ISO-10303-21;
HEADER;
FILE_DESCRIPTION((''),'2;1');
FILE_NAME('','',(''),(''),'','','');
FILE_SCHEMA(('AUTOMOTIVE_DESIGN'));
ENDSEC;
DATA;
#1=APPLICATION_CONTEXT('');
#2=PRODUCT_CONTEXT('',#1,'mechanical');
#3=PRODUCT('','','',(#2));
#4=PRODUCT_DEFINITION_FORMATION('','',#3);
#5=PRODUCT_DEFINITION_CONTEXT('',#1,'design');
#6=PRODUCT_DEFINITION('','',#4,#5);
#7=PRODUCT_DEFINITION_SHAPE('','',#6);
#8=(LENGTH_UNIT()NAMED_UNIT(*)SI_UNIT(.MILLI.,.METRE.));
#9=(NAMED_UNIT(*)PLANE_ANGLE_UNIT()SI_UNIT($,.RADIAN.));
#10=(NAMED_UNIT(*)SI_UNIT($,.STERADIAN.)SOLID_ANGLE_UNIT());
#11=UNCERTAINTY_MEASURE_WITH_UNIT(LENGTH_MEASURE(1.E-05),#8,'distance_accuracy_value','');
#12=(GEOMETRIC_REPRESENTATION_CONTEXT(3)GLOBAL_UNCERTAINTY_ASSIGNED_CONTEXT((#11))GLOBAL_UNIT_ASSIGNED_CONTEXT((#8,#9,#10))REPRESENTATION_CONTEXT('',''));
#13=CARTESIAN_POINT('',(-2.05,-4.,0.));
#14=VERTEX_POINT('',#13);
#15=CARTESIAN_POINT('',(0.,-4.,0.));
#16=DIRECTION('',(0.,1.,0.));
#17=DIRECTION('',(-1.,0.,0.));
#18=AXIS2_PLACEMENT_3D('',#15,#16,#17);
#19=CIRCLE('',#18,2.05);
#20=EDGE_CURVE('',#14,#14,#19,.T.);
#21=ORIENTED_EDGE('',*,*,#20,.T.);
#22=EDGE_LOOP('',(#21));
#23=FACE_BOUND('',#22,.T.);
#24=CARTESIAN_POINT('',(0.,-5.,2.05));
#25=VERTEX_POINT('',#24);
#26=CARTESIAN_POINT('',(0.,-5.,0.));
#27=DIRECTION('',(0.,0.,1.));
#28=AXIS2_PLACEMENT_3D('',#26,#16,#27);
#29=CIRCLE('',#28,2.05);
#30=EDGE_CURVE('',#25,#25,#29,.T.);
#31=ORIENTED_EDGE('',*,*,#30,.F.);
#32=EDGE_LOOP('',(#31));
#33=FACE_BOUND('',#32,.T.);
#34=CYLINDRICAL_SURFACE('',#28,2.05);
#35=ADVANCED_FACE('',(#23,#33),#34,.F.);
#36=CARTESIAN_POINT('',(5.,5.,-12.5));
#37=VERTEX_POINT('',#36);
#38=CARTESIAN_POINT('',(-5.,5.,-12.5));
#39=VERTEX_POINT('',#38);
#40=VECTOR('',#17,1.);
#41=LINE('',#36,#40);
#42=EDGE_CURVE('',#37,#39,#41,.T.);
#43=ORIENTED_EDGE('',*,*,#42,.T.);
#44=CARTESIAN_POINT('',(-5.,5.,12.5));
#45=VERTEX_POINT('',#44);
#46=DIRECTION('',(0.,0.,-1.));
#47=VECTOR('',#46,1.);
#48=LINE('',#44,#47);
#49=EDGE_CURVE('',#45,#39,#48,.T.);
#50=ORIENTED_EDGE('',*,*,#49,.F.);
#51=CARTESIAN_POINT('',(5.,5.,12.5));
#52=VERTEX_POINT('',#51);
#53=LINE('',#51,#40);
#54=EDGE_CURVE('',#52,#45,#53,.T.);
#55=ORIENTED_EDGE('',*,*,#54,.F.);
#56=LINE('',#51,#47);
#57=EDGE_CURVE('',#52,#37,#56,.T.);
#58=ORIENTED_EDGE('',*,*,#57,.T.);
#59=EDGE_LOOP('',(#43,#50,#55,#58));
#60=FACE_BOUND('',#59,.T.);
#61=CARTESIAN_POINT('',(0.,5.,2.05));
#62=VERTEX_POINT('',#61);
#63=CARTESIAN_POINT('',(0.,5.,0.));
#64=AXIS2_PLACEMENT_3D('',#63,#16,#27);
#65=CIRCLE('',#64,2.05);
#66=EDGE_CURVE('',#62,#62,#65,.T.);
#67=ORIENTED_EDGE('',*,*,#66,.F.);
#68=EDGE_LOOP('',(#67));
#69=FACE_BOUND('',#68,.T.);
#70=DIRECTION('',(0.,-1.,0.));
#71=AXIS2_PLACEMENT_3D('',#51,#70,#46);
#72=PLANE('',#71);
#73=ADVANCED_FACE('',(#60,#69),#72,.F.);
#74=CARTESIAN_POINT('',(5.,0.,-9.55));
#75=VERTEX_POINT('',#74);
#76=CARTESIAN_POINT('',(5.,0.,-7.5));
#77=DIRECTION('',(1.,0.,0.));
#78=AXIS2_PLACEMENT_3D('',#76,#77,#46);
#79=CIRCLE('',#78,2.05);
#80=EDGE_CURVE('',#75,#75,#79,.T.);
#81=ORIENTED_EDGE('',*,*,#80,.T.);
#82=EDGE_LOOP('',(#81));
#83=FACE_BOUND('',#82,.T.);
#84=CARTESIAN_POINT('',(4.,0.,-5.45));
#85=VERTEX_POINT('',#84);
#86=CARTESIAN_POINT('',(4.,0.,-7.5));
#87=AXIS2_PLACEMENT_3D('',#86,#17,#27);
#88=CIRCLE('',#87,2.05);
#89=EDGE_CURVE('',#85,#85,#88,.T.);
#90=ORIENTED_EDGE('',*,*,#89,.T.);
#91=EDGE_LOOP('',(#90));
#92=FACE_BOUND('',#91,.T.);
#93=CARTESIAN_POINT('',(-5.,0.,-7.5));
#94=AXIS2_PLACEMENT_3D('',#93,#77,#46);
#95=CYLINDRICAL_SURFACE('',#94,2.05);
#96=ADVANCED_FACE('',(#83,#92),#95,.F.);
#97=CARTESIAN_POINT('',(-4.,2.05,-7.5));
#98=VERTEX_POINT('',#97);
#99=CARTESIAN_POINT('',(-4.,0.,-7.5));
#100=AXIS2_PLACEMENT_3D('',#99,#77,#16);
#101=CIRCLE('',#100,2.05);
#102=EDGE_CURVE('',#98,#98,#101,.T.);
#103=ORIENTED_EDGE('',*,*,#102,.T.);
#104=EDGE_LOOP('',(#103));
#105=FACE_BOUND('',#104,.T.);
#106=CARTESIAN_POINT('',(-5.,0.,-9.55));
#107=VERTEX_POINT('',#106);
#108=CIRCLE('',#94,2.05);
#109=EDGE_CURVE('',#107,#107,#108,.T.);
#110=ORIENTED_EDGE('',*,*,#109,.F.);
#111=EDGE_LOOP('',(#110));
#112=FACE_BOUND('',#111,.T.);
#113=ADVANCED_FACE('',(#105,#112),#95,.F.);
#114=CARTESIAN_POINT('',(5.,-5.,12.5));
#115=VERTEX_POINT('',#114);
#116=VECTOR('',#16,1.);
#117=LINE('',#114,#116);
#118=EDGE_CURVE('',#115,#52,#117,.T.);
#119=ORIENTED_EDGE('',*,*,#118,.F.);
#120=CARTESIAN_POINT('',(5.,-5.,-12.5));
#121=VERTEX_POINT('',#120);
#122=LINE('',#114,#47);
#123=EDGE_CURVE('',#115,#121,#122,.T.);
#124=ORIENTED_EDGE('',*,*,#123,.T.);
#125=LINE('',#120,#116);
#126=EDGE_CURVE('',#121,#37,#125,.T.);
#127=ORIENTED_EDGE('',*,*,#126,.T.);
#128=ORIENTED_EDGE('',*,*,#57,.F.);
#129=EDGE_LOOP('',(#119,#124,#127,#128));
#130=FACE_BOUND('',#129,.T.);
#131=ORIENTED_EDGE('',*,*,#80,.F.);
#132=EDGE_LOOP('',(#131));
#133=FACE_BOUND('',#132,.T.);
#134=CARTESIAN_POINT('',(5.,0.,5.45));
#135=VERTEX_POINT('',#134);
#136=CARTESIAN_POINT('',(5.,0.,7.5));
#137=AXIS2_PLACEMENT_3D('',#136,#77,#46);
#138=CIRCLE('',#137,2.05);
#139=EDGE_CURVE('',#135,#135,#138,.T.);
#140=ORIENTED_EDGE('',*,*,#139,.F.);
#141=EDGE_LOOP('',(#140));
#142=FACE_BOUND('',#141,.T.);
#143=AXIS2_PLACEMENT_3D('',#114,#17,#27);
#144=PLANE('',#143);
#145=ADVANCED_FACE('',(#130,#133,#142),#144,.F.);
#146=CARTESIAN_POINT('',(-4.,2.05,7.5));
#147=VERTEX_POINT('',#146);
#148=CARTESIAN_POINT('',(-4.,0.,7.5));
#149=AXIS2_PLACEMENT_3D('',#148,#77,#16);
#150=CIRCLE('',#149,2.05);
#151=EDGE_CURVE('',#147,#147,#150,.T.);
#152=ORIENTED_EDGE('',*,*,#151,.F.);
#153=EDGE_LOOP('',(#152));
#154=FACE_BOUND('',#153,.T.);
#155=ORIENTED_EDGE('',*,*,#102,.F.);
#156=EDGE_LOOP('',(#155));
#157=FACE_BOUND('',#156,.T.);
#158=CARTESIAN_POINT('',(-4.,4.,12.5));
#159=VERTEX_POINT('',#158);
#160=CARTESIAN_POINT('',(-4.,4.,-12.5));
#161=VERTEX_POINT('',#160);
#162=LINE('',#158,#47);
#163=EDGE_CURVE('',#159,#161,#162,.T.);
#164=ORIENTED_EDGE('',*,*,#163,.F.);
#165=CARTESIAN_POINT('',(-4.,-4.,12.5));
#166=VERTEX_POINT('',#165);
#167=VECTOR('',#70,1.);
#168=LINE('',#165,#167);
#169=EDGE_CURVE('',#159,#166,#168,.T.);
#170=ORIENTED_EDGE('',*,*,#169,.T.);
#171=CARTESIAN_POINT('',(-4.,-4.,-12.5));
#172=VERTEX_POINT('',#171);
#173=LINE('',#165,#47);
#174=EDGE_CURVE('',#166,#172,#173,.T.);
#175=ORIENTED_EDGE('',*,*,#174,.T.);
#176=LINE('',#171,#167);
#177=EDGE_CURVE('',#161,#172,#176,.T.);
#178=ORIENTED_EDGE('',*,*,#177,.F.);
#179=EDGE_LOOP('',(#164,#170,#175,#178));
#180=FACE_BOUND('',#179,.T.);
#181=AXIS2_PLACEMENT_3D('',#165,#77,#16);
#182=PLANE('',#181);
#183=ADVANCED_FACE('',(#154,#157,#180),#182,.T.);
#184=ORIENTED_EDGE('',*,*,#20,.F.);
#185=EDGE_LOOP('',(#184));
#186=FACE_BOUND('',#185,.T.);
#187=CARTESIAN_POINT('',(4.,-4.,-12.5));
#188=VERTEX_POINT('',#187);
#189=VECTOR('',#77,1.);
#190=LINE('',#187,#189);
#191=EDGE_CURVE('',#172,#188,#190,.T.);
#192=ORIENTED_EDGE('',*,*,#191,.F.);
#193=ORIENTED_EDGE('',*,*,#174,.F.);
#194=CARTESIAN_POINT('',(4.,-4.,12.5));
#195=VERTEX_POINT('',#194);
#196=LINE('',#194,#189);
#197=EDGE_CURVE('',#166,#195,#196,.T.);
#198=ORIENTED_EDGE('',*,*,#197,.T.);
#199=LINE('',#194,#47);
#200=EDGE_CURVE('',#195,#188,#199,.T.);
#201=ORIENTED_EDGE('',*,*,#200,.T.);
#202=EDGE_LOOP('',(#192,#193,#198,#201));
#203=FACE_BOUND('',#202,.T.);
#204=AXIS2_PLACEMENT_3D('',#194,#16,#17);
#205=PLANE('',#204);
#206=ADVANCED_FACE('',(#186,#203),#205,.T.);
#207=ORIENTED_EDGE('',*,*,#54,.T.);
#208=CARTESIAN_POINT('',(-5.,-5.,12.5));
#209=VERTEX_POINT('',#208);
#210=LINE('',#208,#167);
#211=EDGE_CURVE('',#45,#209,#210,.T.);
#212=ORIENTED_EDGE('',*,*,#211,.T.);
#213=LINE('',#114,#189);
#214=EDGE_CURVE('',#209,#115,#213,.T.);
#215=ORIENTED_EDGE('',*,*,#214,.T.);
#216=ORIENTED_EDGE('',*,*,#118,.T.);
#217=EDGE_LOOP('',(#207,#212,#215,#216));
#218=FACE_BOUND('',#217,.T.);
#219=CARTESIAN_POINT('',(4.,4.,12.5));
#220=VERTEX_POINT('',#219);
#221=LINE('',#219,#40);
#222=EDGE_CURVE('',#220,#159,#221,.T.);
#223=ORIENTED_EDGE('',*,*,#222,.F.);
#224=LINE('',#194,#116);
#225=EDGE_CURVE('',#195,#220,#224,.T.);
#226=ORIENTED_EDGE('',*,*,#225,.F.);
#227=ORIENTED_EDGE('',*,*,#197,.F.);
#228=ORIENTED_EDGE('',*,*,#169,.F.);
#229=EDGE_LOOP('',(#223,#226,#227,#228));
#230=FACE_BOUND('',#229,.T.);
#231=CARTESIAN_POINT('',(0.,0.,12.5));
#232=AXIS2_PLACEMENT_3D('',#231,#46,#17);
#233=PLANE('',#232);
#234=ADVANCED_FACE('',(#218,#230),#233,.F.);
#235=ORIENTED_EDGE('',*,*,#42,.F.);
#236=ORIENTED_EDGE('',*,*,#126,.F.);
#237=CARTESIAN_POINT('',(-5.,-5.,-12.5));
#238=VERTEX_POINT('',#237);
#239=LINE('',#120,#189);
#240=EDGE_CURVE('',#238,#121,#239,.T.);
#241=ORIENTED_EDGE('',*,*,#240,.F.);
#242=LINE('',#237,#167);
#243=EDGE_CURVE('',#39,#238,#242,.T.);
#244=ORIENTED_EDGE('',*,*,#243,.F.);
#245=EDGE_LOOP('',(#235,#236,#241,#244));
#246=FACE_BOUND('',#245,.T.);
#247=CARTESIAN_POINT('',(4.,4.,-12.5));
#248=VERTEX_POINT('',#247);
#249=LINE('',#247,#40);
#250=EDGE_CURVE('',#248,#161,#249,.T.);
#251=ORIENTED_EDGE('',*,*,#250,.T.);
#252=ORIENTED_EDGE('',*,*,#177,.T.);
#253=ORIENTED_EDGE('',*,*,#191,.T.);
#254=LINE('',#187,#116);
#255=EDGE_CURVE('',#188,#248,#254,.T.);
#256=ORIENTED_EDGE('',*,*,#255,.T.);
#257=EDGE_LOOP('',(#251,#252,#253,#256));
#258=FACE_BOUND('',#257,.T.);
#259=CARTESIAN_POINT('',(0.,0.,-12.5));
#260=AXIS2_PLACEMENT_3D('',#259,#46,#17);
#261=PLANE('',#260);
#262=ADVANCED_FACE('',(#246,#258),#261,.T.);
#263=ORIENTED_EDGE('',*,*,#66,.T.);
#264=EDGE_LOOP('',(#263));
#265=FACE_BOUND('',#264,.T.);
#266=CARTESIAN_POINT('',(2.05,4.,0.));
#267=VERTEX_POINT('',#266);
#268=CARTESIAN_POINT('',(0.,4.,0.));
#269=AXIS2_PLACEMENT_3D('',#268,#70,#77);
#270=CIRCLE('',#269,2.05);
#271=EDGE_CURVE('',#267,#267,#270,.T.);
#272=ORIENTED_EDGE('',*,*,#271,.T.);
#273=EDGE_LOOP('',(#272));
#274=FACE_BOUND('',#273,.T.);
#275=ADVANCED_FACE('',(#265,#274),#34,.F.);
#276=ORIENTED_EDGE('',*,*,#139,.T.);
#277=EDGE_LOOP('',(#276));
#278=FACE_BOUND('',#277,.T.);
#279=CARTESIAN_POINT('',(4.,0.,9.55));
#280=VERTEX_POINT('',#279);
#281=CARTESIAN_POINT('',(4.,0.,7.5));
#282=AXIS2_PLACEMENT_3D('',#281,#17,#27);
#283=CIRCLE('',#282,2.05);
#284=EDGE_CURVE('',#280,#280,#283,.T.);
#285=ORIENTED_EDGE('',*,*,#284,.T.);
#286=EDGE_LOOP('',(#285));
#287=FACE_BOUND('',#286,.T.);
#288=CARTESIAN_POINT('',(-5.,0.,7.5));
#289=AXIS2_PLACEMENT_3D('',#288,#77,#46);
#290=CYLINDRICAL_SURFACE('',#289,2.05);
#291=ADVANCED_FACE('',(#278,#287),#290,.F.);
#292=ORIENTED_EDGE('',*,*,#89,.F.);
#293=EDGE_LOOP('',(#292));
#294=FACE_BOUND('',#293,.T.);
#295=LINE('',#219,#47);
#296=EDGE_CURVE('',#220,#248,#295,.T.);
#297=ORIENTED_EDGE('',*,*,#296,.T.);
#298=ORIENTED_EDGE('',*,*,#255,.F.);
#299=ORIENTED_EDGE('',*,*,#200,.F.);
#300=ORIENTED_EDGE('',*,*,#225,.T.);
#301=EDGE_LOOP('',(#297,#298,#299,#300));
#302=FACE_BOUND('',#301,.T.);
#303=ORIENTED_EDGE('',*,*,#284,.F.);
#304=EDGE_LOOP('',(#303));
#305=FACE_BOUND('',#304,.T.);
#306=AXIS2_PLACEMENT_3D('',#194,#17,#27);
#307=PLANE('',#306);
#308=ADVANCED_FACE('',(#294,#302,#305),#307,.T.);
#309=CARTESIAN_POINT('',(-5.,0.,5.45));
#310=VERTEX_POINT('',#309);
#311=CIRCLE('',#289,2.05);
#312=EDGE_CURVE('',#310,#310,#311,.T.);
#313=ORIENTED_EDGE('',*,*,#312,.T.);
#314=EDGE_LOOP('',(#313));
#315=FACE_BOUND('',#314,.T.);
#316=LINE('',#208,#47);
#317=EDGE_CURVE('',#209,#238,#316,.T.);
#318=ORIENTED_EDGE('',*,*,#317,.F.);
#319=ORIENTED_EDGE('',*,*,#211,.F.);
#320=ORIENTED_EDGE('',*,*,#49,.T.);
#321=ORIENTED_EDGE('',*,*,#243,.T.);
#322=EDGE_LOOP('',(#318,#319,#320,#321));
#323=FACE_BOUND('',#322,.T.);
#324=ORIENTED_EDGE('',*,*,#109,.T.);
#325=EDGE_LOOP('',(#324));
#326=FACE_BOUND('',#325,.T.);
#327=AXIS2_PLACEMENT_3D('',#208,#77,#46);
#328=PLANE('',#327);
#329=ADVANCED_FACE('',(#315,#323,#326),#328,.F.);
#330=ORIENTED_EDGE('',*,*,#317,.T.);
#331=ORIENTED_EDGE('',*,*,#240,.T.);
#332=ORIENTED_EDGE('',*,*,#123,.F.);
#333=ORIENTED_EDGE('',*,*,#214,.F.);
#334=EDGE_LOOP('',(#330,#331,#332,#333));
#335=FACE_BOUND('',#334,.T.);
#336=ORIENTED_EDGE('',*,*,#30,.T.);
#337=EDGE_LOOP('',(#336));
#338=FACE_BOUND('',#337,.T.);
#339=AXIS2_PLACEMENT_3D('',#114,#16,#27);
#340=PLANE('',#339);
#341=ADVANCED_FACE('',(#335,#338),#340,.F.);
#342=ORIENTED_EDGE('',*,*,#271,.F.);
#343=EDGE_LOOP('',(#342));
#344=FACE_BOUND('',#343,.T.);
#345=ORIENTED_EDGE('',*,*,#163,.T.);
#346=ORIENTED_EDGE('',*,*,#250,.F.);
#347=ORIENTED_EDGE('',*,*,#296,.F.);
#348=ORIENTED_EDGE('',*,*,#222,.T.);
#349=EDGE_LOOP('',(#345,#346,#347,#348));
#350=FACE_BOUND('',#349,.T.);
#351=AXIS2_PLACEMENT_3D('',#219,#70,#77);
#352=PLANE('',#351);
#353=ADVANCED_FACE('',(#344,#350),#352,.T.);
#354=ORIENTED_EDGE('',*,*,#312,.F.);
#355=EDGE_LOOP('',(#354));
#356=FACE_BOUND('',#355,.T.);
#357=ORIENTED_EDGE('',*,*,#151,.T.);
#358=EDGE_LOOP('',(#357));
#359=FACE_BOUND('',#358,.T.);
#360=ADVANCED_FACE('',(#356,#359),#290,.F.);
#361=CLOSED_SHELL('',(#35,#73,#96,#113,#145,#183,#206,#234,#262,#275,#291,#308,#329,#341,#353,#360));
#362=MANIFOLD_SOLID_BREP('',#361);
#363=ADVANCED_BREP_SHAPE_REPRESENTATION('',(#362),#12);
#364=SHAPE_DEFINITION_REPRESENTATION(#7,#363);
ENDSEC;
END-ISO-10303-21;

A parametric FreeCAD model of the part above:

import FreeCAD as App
import Part
import Sketcher
from FreeCAD import Vector

doc = App.newDocument("Part")
params = doc.addObject("Spreadsheet::Sheet", "Params")
for row, (alias, value) in enumerate([
    ("sketch1_width", "10 mm"),
    ("sketch1_width2", "8 mm"),
    ("pad1_length", "25 mm"),
    ("sketch2_diameter", "4.1 mm"),
    ("sketch3_diameter", "4.1 mm"),
], start=1):
    params.set(f"A{row}", alias)
    params.set(f"B{row}", "=" + value)
    params.setAlias(f"B{row}", alias)

body = doc.addObject("PartDesign::Body", "Body")

# Sketch on XY plane
sketch1 = body.newObject("Sketcher::SketchObject", "Sketch")
sketch1.AttachmentSupport = (doc.getObject("XY_Plane"), [""])
sketch1.MapMode = "FlatFace"
sketch1.addGeometry(Part.LineSegment(Vector(-5, 5, 0), Vector(-5, -5, 0)), False)
sketch1.addGeometry(Part.LineSegment(Vector(-5, -5, 0), Vector(5, -5, 0)), False)
sketch1.addGeometry(Part.LineSegment(Vector(5, -5, 0), Vector(5, 5, 0)), False)
sketch1.addGeometry(Part.LineSegment(Vector(5, 5, 0), Vector(-5, 5, 0)), False)
sketch1.addGeometry(Part.LineSegment(Vector(4, -4, 0), Vector(-4, -4, 0)), False)
sketch1.addGeometry(Part.LineSegment(Vector(-4, -4, 0), Vector(-4, 4, 0)), False)
sketch1.addGeometry(Part.LineSegment(Vector(-4, 4, 0), Vector(4, 4, 0)), False)
sketch1.addGeometry(Part.LineSegment(Vector(4, 4, 0), Vector(4, -4, 0)), False)
sketch1.addConstraint(Sketcher.Constraint("Coincident", 0, 2, 1, 1))
sketch1.addConstraint(Sketcher.Constraint("Coincident", 1, 2, 2, 1))
sketch1.addConstraint(Sketcher.Constraint("Coincident", 2, 2, 3, 1))
sketch1.addConstraint(Sketcher.Constraint("Coincident", 3, 2, 0, 1))
sketch1.addConstraint(Sketcher.Constraint("Coincident", 4, 2, 5, 1))
sketch1.addConstraint(Sketcher.Constraint("Coincident", 5, 2, 6, 1))
sketch1.addConstraint(Sketcher.Constraint("Coincident", 6, 2, 7, 1))
sketch1.addConstraint(Sketcher.Constraint("Coincident", 7, 2, 4, 1))
sketch1.addConstraint(Sketcher.Constraint("Vertical", 0))
sketch1.addConstraint(Sketcher.Constraint("Horizontal", 1))
sketch1.addConstraint(Sketcher.Constraint("Vertical", 2))
sketch1.addConstraint(Sketcher.Constraint("Horizontal", 3))
sketch1.addConstraint(Sketcher.Constraint("Horizontal", 4))
sketch1.addConstraint(Sketcher.Constraint("Vertical", 5))
sketch1.addConstraint(Sketcher.Constraint("Horizontal", 6))
sketch1.addConstraint(Sketcher.Constraint("Vertical", 7))
sketch1.addConstraint(Sketcher.Constraint("Symmetric", 0, 2, 2, 2, -1, 1))
sketch1.addConstraint(Sketcher.Constraint("Symmetric", 4, 2, 6, 2, -1, 1))
sketch1.addConstraint(Sketcher.Constraint("Equal", 3, 0))
sketch1.addConstraint(Sketcher.Constraint("Equal", 6, 5))
sketch1.addConstraint(Sketcher.Constraint("DistanceX", 1, 1, 1, 2, 10.0))
sketch1.addConstraint(Sketcher.Constraint("DistanceX", 4, 2, 4, 1, 8.0))
sketch1.setExpression("Constraints[20]", "Params.sketch1_width")
sketch1.setExpression("Constraints[21]", "Params.sketch1_width2")
pad1 = body.newObject("PartDesign::Pad", "Pad")
pad1.Profile = sketch1
pad1.setExpression("Length", "Params.pad1_length")
pad1.Midplane = True

# Sketch on XZ plane
sketch2 = body.newObject("Sketcher::SketchObject", "Sketch001")
sketch2.AttachmentSupport = (doc.getObject("XZ_Plane"), [""])
sketch2.MapMode = "FlatFace"
sketch2.AttachmentOffset = App.Placement(Vector(0, 0, -5), App.Rotation())
sketch2.addGeometry(Part.Circle(Vector(0, 0, 0), Vector(0, 0, 1), 2), False)
sketch2.addConstraint(Sketcher.Constraint("Coincident", 0, 3, -1, 1))
sketch2.addConstraint(Sketcher.Constraint("Diameter", 0, 4.1))
sketch2.setExpression("Constraints[1]", "Params.sketch2_diameter")
pocket1 = body.newObject("PartDesign::Pocket", "Pocket")
pocket1.Profile = sketch2
pocket1.Type = "ThroughAll"
pocket1.Reversed = True

# Sketch on YZ plane
sketch3 = body.newObject("Sketcher::SketchObject", "Sketch002")
sketch3.AttachmentSupport = (doc.getObject("YZ_Plane"), [""])
sketch3.MapMode = "FlatFace"
sketch3.AttachmentOffset = App.Placement(Vector(0, 0, 5), App.Rotation())
sketch3.addGeometry(Part.Circle(Vector(0, 7.5, 0), Vector(0, 0, 1), 2), False)
sketch3.addGeometry(Part.Circle(Vector(0, -7.5, 0), Vector(0, 0, 1), 2), False)
sketch3.addConstraint(Sketcher.Constraint("Equal", 0, 1))
sketch3.addConstraint(Sketcher.Constraint("Symmetric", 0, 3, 1, 3, -1, 1))
sketch3.addConstraint(Sketcher.Constraint("PointOnObject", 0, 3, -2))
sketch3.addConstraint(Sketcher.Constraint("Diameter", 0, 4.1))
sketch3.addConstraint(Sketcher.Constraint("DistanceY", 1, 3, 0, 3, 15.0))
sketch3.setExpression("Constraints[3]", "Params.sketch3_diameter")
pocket2 = body.newObject("PartDesign::Pocket", "Pocket001")
pocket2.Profile = sketch3
pocket2.Type = "ThroughAll"

doc.recompute()
